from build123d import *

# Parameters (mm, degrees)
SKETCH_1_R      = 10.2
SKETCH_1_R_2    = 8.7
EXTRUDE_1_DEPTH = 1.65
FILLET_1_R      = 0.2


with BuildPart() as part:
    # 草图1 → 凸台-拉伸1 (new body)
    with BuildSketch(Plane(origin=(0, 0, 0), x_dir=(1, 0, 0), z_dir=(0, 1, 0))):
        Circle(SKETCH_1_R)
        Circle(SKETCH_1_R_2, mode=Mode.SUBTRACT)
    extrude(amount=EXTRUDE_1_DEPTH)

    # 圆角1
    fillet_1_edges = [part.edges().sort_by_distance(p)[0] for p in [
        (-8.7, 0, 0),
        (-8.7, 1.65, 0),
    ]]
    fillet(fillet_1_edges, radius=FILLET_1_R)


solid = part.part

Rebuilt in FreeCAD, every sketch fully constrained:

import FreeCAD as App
import Part
import Sketcher
from FreeCAD import Vector


def edges_at(feature, points):
    """Names of the edges that pass closest to the given points."""
    edges = feature.Shape.Edges
    near = lambda p: min(range(len(edges)), key=lambda i: edges[i].distToShape(Part.Vertex(*p))[0])
    return sorted({f"Edge{near(p) + 1}" for p in points})

doc = App.newDocument("Part")
params = doc.addObject("Spreadsheet::Sheet", "Params")
for row, (alias, value) in enumerate([
    ("sketch1_diameter", "20.4 mm"),
    ("sketch1_diameter2", "17.4 mm"),
    ("pad1_length", "1.65 mm"),
    ("fillet_radius", "0.2 mm"),
], start=1):
    params.set(f"A{row}", alias)
    params.set(f"B{row}", "=" + value)
    params.setAlias(f"B{row}", alias)

body = doc.addObject("PartDesign::Body", "Body")

# Sketch on XZ plane
sketch1 = doc.addObject("Sketcher::SketchObject", "Sketch")
body.addObject(sketch1)
sketch1.AttachmentSupport = (doc.XZ_Plane, [""])
sketch1.MapMode = "FlatFace"
sketch1.addGeometry([
    Part.Circle(Vector(0, 0, 0), Vector(0, 0, 1), 10),
    Part.Circle(Vector(0, 0, 0), Vector(0, 0, 1), 9),
], False)
sketch1.addConstraint([
    Sketcher.Constraint("Coincident", 0, 3, -1, 1),
    Sketcher.Constraint("Coincident", 1, 3, -1, 1),
    Sketcher.Constraint("Diameter", 0, 20.4),
    Sketcher.Constraint("Diameter", 1, 17.4),
])
sketch1.setExpression("Constraints[2]", "Params.sketch1_diameter")
sketch1.setExpression("Constraints[3]", "Params.sketch1_diameter2")
pad1 = doc.addObject("PartDesign::Pad", "Pad")
body.addObject(pad1)
pad1.Profile = sketch1
pad1.setExpression("Length", "Params.pad1_length")
pad1.Reversed = True
doc.recompute()

fillet = doc.addObject("PartDesign::Fillet", "Fillet")
body.addObject(fillet)
fillet.Base = (pad1, edges_at(pad1, [(-8.7, 0, 0), (-8.7, 1.65, 0)]))
fillet.setExpression("Radius", "Params.fillet_radius")

doc.recompute()
